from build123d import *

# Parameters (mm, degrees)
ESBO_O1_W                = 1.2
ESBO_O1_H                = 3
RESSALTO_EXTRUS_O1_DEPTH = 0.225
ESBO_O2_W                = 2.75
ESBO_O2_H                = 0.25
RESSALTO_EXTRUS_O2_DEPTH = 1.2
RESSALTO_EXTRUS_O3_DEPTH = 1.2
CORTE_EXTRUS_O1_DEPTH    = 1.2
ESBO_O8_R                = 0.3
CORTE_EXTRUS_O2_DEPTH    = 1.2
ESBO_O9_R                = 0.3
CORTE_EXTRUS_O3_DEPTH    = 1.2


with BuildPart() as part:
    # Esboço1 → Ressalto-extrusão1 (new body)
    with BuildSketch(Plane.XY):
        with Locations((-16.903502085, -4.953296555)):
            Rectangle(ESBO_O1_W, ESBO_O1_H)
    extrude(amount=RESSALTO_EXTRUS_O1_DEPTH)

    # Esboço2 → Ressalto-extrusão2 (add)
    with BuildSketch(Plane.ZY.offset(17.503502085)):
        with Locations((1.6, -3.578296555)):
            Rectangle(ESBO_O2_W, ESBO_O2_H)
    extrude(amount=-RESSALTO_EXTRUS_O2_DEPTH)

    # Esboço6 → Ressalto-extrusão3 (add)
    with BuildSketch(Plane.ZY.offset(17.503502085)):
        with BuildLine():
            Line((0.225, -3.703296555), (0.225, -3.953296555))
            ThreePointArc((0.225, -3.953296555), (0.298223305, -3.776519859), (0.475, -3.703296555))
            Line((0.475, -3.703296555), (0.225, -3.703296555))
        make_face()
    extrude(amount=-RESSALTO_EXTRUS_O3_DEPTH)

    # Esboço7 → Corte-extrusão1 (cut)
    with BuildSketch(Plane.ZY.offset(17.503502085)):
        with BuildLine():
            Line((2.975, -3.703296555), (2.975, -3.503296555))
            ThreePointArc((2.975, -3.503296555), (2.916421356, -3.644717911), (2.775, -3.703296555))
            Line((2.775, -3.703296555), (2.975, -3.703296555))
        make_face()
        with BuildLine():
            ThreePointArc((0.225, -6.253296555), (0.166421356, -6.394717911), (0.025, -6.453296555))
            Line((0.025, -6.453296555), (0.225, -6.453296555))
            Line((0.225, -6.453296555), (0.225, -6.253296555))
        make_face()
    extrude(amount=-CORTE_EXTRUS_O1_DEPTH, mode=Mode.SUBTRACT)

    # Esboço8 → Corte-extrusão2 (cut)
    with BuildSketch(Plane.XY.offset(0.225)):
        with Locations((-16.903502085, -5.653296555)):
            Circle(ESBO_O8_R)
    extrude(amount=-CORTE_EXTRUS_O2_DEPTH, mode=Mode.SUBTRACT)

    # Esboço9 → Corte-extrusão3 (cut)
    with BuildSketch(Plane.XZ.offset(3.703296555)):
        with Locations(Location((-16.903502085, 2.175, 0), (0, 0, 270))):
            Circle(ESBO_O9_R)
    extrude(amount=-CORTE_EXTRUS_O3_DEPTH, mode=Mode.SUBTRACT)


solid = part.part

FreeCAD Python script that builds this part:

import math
import FreeCAD as App
import Part
import Sketcher
from FreeCAD import Vector


def add_polygon(sketch, points):
    """Adds a closed chain of lines whose ends are joined by coincident constraints."""
    first, n = sketch.GeometryCount, len(points)
    for a, b in zip(points, points[1:] + points[:1]):
        sketch.addGeometry(Part.LineSegment(App.Vector(*a, 0), App.Vector(*b, 0)), False)
    for i in range(n):
        sketch.addConstraint(Sketcher.Constraint("Coincident", first + i, 2, first + (i + 1) % n, 1))

doc = App.newDocument("Part")
body = doc.addObject("PartDesign::Body", "Body")

# Sketch on XY plane
sketch1 = body.newObject("Sketcher::SketchObject", "Sketch")
sketch1.AttachmentSupport = (doc.getObject("XY_Plane"), [""])
sketch1.MapMode = "FlatFace"
add_polygon(sketch1, [(-17.5, -3.5), (-17.5, -6.5), (-16.3, -6.5), (-16.3, -3.5)])  # lines 0-3
sketch1.addConstraint(Sketcher.Constraint("Vertical", 0))
sketch1.addConstraint(Sketcher.Constraint("Horizontal", 1))
sketch1.addConstraint(Sketcher.Constraint("Vertical", 2))
sketch1.addConstraint(Sketcher.Constraint("Horizontal", 3))
sketch1.addConstraint(Sketcher.Constraint("DistanceY", 0, 2, 0, 1, 3.0))
sketch1.addConstraint(Sketcher.Constraint("DistanceX", 1, 1, 1, 2, 1.2))
sketch1.addConstraint(Sketcher.Constraint("DistanceX", 0, 2, -1, 1, 17.503502))
sketch1.addConstraint(Sketcher.Constraint("DistanceY", 0, 2, -1, 1, 6.453297))
pad1 = body.newObject("PartDesign::Pad", "Pad")
pad1.Profile = sketch1
pad1.Length = 0.225

# Sketch on YZ plane
sketch2 = body.newObject("Sketcher::SketchObject", "Sketch001")
sketch2.AttachmentSupport = (doc.getObject("YZ_Plane"), [""])
sketch2.MapMode = "FlatFace"
sketch2.AttachmentOffset = App.Placement(Vector(0, 0, -17.503502), App.Rotation())
add_polygon(sketch2, [(-3.45, 0.23), (-3.7, 0.23), (-3.7, 2.98), (-3.45, 2.98)])  # lines 0-3
sketch2.addConstraint(Sketcher.Constraint("Horizontal", 0))
sketch2.addConstraint(Sketcher.Constraint("Vertical", 1))
sketch2.addConstraint(Sketcher.Constraint("Horizontal", 2))
sketch2.addConstraint(Sketcher.Constraint("Vertical", 3))
sketch2.addConstraint(Sketcher.Constraint("DistanceX", 0, 2, 0, 1, 0.25))
sketch2.addConstraint(Sketcher.Constraint("DistanceY", 1, 1, 1, 2, 2.75))
sketch2.addConstraint(Sketcher.Constraint("DistanceY", -1, 1, 0, 2, 0.225))
sketch2.addConstraint(Sketcher.Constraint("DistanceX", 0, 2, -1, 1, 3.703297))
pad2 = body.newObject("PartDesign::Pad", "Pad001")
pad2.Profile = sketch2
pad2.Length = 1.2

# Sketch on YZ plane
sketch3 = body.newObject("Sketcher::SketchObject", "Sketch002")
sketch3.AttachmentSupport = (doc.getObject("YZ_Plane"), [""])
sketch3.MapMode = "FlatFace"
sketch3.AttachmentOffset = App.Placement(Vector(0, 0, -17.503502), App.Rotation())
sketch3.addGeometry(Part.LineSegment(Vector(-3.7, 0.23, 0), Vector(-3.95, 0.23, 0)), False)
sketch3.addGeometry(Part.ArcOfCircle(Part.Circle(Vector(-3.95, 0.47, 0), Vector(0, 0, 1), 0.25), math.radians(-90), math.radians(0)), False)
sketch3.addGeometry(Part.LineSegment(Vector(-3.7, 0.47, 0), Vector(-3.7, 0.23, 0)), False)
sketch3.addConstraint(Sketcher.Constraint("Tangent", 0, 2, 1, 1))
sketch3.addConstraint(Sketcher.Constraint("Tangent", 1, 2, 2, 1))
sketch3.addConstraint(Sketcher.Constraint("Coincident", 2, 2, 0, 1))
sketch3.addConstraint(Sketcher.Constraint("Horizontal", 0))
sketch3.addConstraint(Sketcher.Constraint("Vertical", 2))
sketch3.addConstraint(Sketcher.Constraint("Radius", 1, 0.25))
sketch3.addConstraint(Sketcher.Constraint("DistanceY", -1, 1, 1, 3, 0.475))
sketch3.addConstraint(Sketcher.Constraint("DistanceX", 1, 3, -1, 1, 3.953297))
pad3 = body.newObject("PartDesign::Pad", "Pad002")
pad3.Profile = sketch3
pad3.Length = 1.2

# Sketch on YZ plane
sketch4 = body.newObject("Sketcher::SketchObject", "Sketch003")
sketch4.AttachmentSupport = (doc.getObject("YZ_Plane"), [""])
sketch4.MapMode = "FlatFace"
sketch4.AttachmentOffset = App.Placement(Vector(0, 0, -17.503502), App.Rotation())
sketch4.addGeometry(Part.LineSegment(Vector(-3.7, 2.98, 0), Vector(-3.5, 2.98, 0)), False)
sketch4.addGeometry(Part.ArcOfCircle(Part.Circle(Vector(-3.5, 2.77, 0), Vector(0, 0, 1), 0.2), math.radians(90), math.radians(180)), False)
sketch4.addGeometry(Part.LineSegment(Vector(-3.7, 2.77, 0), Vector(-3.7, 2.98, 0)), False)
sketch4.addGeometry(Part.ArcOfCircle(Part.Circle(Vector(-6.25, 0.02, 0), Vector(0, 0, 1), 0.2), math.radians(90), math.radians(180)), False)
sketch4.addGeometry(Part.LineSegment(Vector(-6.45, 0.03, 0), Vector(-6.45, 0.23, 0)), False)
sketch4.addGeometry(Part.LineSegment(Vector(-6.45, 0.23, 0), Vector(-6.25, 0.23, 0)), False)
sketch4.addConstraint(Sketcher.Constraint("Tangent", 0, 2, 1, 1))
sketch4.addConstraint(Sketcher.Constraint("Tangent", 1, 2, 2, 1))
sketch4.addConstraint(Sketcher.Constraint("Coincident", 2, 2, 0, 1))
sketch4.addConstraint(Sketcher.Constraint("Tangent", 3, 2, 4, 1))
sketch4.addConstraint(Sketcher.Constraint("Coincident", 4, 2, 5, 1))
sketch4.addConstraint(Sketcher.Constraint("Tangent", 5, 2, 3, 1))
sketch4.addConstraint(Sketcher.Constraint("Horizontal", 0))
sketch4.addConstraint(Sketcher.Constraint("Vertical", 2))
sketch4.addConstraint(Sketcher.Constraint("Vertical", 4))
sketch4.addConstraint(Sketcher.Constraint("Horizontal", 5))
sketch4.addConstraint(Sketcher.Constraint("Equal", 1, 3))
sketch4.addConstraint(Sketcher.Constraint("Radius", 1, 0.2))
sketch4.addConstraint(Sketcher.Constraint("DistanceX", 3, 3, 1, 3, 2.75))
sketch4.addConstraint(Sketcher.Constraint("DistanceY", 3, 3, 1, 3, 2.75))
sketch4.addConstraint(Sketcher.Constraint("DistanceY", -1, 1, 1, 3, 2.775))
sketch4.addConstraint(Sketcher.Constraint("DistanceX", 1, 3, -1, 1, 3.503297))
pocket1 = body.newObject("PartDesign::Pocket", "Pocket")
pocket1.Profile = sketch4
pocket1.Length = 1.2
pocket1.Reversed = True

# Sketch on XY plane
sketch5 = body.newObject("Sketcher::SketchObject", "Sketch004")
sketch5.AttachmentSupport = (doc.getObject("XY_Plane"), [""])
sketch5.MapMode = "FlatFace"
sketch5.AttachmentOffset = App.Placement(Vector(0, 0, 0.225), App.Rotation())
sketch5.addGeometry(Part.Circle(Vector(-16.9, -5.65, 0), Vector(0, 0, 1), 0.3), False)
sketch5.addConstraint(Sketcher.Constraint("Diameter", 0, 0.6))
sketch5.addConstraint(Sketcher.Constraint("DistanceX", 0, 3, -1, 1, 16.903502))
sketch5.addConstraint(Sketcher.Constraint("DistanceY", 0, 3, -1, 1, 5.653297))
pocket2 = body.newObject("PartDesign::Pocket", "Pocket001")
pocket2.Profile = sketch5
pocket2.Length = 1.2

# Sketch on XZ plane
sketch6 = body.newObject("Sketcher::SketchObject", "Sketch005")
sketch6.AttachmentSupport = (doc.getObject("XZ_Plane"), [""])
sketch6.MapMode = "FlatFace"
sketch6.AttachmentOffset = App.Placement(Vector(0, 0, 3.703297), App.Rotation())
sketch6.addGeometry(Part.Circle(Vector(-16.9, 2.17, 0), Vector(0, 0, 1), 0.3), False)
sketch6.addConstraint(Sketcher.Constraint("Diameter", 0, 0.6))
sketch6.addConstraint(Sketcher.Constraint("DistanceY", -1, 1, 0, 3, 2.175))
sketch6.addConstraint(Sketcher.Constraint("DistanceX", 0, 3, -1, 1, 16.903502))
pocket3 = body.newObject("PartDesign::Pocket", "Pocket002")
pocket3.Profile = sketch6
pocket3.Length = 1.2

doc.recompute()
